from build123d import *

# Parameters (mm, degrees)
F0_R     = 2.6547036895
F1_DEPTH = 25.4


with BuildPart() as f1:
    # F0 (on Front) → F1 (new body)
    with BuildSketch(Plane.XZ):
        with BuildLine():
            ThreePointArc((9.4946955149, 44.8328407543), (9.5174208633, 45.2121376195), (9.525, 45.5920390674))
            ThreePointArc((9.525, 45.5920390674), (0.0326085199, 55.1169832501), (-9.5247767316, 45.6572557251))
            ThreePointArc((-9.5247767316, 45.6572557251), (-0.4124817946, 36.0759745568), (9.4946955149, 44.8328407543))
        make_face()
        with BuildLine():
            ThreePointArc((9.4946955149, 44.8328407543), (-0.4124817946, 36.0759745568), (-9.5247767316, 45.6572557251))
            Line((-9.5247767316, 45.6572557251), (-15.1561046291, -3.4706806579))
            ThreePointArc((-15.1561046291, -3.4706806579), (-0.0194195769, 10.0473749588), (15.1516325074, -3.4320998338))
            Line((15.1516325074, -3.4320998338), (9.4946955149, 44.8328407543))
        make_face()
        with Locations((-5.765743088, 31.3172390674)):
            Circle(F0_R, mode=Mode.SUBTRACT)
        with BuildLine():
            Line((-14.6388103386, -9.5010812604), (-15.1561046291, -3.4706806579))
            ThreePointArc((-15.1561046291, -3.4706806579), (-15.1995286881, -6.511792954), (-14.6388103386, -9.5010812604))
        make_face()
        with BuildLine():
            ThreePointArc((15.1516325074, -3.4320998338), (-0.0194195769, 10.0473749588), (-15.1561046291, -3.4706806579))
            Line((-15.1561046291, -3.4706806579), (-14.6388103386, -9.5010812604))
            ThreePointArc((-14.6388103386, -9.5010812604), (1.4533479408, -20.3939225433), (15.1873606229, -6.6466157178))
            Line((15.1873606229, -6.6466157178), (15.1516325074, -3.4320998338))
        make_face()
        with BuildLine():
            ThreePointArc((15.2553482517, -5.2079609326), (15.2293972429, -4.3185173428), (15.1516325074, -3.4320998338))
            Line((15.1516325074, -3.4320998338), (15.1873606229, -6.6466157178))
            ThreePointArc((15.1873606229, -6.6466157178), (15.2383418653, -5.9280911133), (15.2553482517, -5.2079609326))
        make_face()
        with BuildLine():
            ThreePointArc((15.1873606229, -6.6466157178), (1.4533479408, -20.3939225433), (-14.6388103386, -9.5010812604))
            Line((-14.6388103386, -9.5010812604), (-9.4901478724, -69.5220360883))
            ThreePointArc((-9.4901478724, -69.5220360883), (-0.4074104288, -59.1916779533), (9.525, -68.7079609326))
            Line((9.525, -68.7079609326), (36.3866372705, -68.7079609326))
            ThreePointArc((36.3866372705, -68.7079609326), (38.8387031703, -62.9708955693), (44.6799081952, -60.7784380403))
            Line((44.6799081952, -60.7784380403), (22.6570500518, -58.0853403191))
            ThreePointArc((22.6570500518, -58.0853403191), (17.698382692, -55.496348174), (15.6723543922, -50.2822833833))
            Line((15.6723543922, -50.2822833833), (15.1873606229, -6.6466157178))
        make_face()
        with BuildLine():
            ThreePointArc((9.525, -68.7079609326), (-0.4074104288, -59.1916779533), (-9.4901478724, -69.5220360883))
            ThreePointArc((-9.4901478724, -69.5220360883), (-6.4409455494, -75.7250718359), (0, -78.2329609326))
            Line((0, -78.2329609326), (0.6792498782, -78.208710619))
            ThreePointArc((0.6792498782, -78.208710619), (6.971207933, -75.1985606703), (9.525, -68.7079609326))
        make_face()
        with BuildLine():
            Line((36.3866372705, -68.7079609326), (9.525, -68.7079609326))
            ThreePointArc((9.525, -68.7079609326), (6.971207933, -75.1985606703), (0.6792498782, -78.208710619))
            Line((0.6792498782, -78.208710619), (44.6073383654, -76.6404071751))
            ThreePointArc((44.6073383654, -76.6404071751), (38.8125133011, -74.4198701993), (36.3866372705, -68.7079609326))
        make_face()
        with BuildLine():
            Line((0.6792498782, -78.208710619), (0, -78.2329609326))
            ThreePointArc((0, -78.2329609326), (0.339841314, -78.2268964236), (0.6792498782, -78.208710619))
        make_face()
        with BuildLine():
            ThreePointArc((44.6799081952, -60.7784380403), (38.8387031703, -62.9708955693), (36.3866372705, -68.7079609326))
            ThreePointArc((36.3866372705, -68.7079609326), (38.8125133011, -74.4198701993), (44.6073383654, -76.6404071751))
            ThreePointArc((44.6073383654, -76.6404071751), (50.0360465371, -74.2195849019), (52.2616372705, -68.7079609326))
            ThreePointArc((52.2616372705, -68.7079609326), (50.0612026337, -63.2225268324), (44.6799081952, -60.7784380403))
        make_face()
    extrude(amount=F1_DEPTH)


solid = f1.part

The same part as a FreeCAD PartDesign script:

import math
import FreeCAD as App
import Part
import Sketcher
Q = App.Units.Quantity

doc = App.newDocument("Part")
body = doc.addObject("PartDesign::Body", "Body")

# Sketch on XZ plane
sketch1 = doc.addObject("Sketcher::SketchObject", "Sketch")
body.addObject(sketch1)
sketch1.AttachmentSupport = (doc.XZ_Plane, [""])
sketch1.MapMode = "FlatFace"
sketch1.addGeometry([
    Part.ArcOfCircle(Part.Circle(App.Vector(0, 45.6, 0), App.Vector(0, 0, 1), 9.5), math.radians(-4.57), math.radians(0)),  # 0
    Part.ArcOfCircle(Part.Circle(App.Vector(0, 45.6, 0), App.Vector(0, 0, 1), 9.5), math.radians(0), math.radians(180)),  # 1
    Part.LineSegment(App.Vector(-9.5, 45.7, 0), App.Vector(-15.2, -3.5, 0)),  # 2
    Part.ArcOfCircle(Part.Circle(App.Vector(0, -5.2, 0), App.Vector(0, 0, 1), 15.3), math.radians(173), math.radians(196)),  # 3
    Part.LineSegment(App.Vector(-14.6, -9.5, 0), App.Vector(-9.5, -69.5, 0)),  # 4
    Part.ArcOfCircle(Part.Circle(App.Vector(0, -68.7, 0), App.Vector(0, 0, 1), 9.5), math.radians(-175), math.radians(-90)),  # 5
    Part.ArcOfCircle(Part.Circle(App.Vector(0, -68.7, 0), App.Vector(0, 0, 1), 9.5), math.radians(-90), math.radians(-85.91)),  # 6
    Part.LineSegment(App.Vector(0.7, -78.2, 0), App.Vector(44.6, -76.6, 0)),  # 7
    Part.ArcOfCircle(Part.Circle(App.Vector(44.3, -68.7, 0), App.Vector(0, 0, 1), 7.9), math.radians(-88), math.radians(0)),  # 8
    Part.ArcOfCircle(Part.Circle(App.Vector(44.3, -68.7, 0), App.Vector(0, 0, 1), 7.9), math.radians(0), math.radians(87)),  # 9
    Part.LineSegment(App.Vector(44.7, -60.8, 0), App.Vector(22.7, -58.1, 0)),  # 10
    Part.ArcOfCircle(Part.Circle(App.Vector(23.6, -50.2, 0), App.Vector(0, 0, 1), 8), math.radians(-179), math.radians(-97)),  # 11
    Part.LineSegment(App.Vector(15.7, -50.3, 0), App.Vector(15.2, -6.6, 0)),  # 12
    Part.ArcOfCircle(Part.Circle(App.Vector(0, -5.2, 0), App.Vector(0, 0, 1), 15.3), math.radians(-5.41), math.radians(0)),  # 13
    Part.ArcOfCircle(Part.Circle(App.Vector(0, -5.2, 0), App.Vector(0, 0, 1), 15.3), math.radians(0), math.radians(6.68)),  # 14
    Part.LineSegment(App.Vector(15.2, -3.4, 0), App.Vector(9.5, 44.8, 0)),  # 15
    Part.Circle(App.Vector(-5.8, 31.3, 0), App.Vector(0, 0, 1), 2.7),  # 16
], False)
sketch1.addConstraint([
    Sketcher.Constraint("Tangent", 0, 2, 1, 1),
    Sketcher.Constraint("Coincident", 1, 2, 2, 1),
    Sketcher.Constraint("Tangent", 2, 2, 3, 1),
    Sketcher.Constraint("Coincident", 3, 2, 4, 1),
    Sketcher.Constraint("Tangent", 4, 2, 5, 1),
    Sketcher.Constraint("Tangent", 5, 2, 6, 1),
    Sketcher.Constraint("Coincident", 6, 2, 7, 1),
    Sketcher.Constraint("Tangent", 7, 2, 8, 1),
    Sketcher.Constraint("Tangent", 8, 2, 9, 1),
    Sketcher.Constraint("Coincident", 9, 2, 10, 1),
    Sketcher.Constraint("Tangent", 10, 2, 11, 2),
    Sketcher.Constraint("Tangent", 11, 1, 12, 1),
    Sketcher.Constraint("Coincident", 12, 2, 13, 1),
    Sketcher.Constraint("Tangent", 13, 2, 14, 1),
    Sketcher.Constraint("Tangent", 14, 2, 15, 1),
    Sketcher.Constraint("Coincident", 15, 2, 0, 1),
    Sketcher.Constraint("Coincident", 13, 3, 3, 3),
    Sketcher.Constraint("Equal", 0, 1),
    Sketcher.Constraint("Equal", 1, 5),
    Sketcher.Constraint("Equal", 5, 6),
    Sketcher.Constraint("Equal", 8, 9),
    Sketcher.Constraint("Equal", 3, 13),
    Sketcher.Constraint("Equal", 13, 14),
    Sketcher.Constraint("PointOnObject", 0, 3, -2),
    Sketcher.Constraint("PointOnObject", 3, 3, -2),
    Sketcher.Constraint("PointOnObject", 5, 3, -2),
    Sketcher.Constraint("PointOnObject", 5, 2, -2),
    Sketcher.Constraint("Horizontal", 6, 3, 8, 3),
    Sketcher.Constraint("Horizontal", 1, 3, 0, 2),
    Sketcher.Constraint("Horizontal", 9, 3, 8, 2),
    Sketcher.Constraint("Horizontal", 14, 3, 13, 2),
    Sketcher.Constraint("Radius", 0, Q("0.375 in")),
    Sketcher.Constraint("Radius", 8, Q("0.3125 in")),
    Sketcher.Constraint("Radius", 11, Q("0.313 in")),
    Sketcher.Constraint("DistanceY", 3, 3, 1, 3, Q("2 in")),
    Sketcher.Constraint("DistanceY", 5, 3, 3, 3, Q("2.5 in")),
    Sketcher.Constraint("Radius", 3, Q("15.255348 mm")),
    Sketcher.Constraint("DistanceY", 16, 3, 0, 3, Q("0.562 in")),
    Sketcher.Constraint("Diameter", 16, Q("5.309407 mm")),
    Sketcher.Constraint("DistanceY", 7, 2, 11, 3, Q("1.0412001 in")),
    Sketcher.Constraint("DistanceY", 14, 2, -1, 1, Q("3.4321 mm")),
    Sketcher.Constraint("DistanceY", 3, 2, 2, 2, Q("6.030401 mm")),
    Sketcher.Constraint("DistanceX", 9, 3, 7, 2, Q("0.283201 mm")),
    Sketcher.Constraint("DistanceY", 15, 2, 0, 2, Q("0.759198 mm")),
    Sketcher.Constraint("Distance", 2, Q("49.449631 mm")),
    Sketcher.Constraint("Distance", 10, Q("22.186912 mm")),
    Sketcher.Constraint("DistanceX", -1, 1, 6, 2, Q("0.67925 mm")),
    Sketcher.Constraint("DistanceX", -1, 1, 9, 2, Q("44.679908 mm")),
    Sketcher.Constraint("DistanceX", -1, 1, 12, 2, Q("15.187361 mm")),
    Sketcher.Constraint("DistanceX", 2, 2, 16, 3, Q("9.390362 mm")),
])
pad1 = doc.addObject("PartDesign::Pad", "Pad")
body.addObject(pad1)
pad1.Profile = sketch1
pad1.Length = Q("1 in")

doc.recompute()
